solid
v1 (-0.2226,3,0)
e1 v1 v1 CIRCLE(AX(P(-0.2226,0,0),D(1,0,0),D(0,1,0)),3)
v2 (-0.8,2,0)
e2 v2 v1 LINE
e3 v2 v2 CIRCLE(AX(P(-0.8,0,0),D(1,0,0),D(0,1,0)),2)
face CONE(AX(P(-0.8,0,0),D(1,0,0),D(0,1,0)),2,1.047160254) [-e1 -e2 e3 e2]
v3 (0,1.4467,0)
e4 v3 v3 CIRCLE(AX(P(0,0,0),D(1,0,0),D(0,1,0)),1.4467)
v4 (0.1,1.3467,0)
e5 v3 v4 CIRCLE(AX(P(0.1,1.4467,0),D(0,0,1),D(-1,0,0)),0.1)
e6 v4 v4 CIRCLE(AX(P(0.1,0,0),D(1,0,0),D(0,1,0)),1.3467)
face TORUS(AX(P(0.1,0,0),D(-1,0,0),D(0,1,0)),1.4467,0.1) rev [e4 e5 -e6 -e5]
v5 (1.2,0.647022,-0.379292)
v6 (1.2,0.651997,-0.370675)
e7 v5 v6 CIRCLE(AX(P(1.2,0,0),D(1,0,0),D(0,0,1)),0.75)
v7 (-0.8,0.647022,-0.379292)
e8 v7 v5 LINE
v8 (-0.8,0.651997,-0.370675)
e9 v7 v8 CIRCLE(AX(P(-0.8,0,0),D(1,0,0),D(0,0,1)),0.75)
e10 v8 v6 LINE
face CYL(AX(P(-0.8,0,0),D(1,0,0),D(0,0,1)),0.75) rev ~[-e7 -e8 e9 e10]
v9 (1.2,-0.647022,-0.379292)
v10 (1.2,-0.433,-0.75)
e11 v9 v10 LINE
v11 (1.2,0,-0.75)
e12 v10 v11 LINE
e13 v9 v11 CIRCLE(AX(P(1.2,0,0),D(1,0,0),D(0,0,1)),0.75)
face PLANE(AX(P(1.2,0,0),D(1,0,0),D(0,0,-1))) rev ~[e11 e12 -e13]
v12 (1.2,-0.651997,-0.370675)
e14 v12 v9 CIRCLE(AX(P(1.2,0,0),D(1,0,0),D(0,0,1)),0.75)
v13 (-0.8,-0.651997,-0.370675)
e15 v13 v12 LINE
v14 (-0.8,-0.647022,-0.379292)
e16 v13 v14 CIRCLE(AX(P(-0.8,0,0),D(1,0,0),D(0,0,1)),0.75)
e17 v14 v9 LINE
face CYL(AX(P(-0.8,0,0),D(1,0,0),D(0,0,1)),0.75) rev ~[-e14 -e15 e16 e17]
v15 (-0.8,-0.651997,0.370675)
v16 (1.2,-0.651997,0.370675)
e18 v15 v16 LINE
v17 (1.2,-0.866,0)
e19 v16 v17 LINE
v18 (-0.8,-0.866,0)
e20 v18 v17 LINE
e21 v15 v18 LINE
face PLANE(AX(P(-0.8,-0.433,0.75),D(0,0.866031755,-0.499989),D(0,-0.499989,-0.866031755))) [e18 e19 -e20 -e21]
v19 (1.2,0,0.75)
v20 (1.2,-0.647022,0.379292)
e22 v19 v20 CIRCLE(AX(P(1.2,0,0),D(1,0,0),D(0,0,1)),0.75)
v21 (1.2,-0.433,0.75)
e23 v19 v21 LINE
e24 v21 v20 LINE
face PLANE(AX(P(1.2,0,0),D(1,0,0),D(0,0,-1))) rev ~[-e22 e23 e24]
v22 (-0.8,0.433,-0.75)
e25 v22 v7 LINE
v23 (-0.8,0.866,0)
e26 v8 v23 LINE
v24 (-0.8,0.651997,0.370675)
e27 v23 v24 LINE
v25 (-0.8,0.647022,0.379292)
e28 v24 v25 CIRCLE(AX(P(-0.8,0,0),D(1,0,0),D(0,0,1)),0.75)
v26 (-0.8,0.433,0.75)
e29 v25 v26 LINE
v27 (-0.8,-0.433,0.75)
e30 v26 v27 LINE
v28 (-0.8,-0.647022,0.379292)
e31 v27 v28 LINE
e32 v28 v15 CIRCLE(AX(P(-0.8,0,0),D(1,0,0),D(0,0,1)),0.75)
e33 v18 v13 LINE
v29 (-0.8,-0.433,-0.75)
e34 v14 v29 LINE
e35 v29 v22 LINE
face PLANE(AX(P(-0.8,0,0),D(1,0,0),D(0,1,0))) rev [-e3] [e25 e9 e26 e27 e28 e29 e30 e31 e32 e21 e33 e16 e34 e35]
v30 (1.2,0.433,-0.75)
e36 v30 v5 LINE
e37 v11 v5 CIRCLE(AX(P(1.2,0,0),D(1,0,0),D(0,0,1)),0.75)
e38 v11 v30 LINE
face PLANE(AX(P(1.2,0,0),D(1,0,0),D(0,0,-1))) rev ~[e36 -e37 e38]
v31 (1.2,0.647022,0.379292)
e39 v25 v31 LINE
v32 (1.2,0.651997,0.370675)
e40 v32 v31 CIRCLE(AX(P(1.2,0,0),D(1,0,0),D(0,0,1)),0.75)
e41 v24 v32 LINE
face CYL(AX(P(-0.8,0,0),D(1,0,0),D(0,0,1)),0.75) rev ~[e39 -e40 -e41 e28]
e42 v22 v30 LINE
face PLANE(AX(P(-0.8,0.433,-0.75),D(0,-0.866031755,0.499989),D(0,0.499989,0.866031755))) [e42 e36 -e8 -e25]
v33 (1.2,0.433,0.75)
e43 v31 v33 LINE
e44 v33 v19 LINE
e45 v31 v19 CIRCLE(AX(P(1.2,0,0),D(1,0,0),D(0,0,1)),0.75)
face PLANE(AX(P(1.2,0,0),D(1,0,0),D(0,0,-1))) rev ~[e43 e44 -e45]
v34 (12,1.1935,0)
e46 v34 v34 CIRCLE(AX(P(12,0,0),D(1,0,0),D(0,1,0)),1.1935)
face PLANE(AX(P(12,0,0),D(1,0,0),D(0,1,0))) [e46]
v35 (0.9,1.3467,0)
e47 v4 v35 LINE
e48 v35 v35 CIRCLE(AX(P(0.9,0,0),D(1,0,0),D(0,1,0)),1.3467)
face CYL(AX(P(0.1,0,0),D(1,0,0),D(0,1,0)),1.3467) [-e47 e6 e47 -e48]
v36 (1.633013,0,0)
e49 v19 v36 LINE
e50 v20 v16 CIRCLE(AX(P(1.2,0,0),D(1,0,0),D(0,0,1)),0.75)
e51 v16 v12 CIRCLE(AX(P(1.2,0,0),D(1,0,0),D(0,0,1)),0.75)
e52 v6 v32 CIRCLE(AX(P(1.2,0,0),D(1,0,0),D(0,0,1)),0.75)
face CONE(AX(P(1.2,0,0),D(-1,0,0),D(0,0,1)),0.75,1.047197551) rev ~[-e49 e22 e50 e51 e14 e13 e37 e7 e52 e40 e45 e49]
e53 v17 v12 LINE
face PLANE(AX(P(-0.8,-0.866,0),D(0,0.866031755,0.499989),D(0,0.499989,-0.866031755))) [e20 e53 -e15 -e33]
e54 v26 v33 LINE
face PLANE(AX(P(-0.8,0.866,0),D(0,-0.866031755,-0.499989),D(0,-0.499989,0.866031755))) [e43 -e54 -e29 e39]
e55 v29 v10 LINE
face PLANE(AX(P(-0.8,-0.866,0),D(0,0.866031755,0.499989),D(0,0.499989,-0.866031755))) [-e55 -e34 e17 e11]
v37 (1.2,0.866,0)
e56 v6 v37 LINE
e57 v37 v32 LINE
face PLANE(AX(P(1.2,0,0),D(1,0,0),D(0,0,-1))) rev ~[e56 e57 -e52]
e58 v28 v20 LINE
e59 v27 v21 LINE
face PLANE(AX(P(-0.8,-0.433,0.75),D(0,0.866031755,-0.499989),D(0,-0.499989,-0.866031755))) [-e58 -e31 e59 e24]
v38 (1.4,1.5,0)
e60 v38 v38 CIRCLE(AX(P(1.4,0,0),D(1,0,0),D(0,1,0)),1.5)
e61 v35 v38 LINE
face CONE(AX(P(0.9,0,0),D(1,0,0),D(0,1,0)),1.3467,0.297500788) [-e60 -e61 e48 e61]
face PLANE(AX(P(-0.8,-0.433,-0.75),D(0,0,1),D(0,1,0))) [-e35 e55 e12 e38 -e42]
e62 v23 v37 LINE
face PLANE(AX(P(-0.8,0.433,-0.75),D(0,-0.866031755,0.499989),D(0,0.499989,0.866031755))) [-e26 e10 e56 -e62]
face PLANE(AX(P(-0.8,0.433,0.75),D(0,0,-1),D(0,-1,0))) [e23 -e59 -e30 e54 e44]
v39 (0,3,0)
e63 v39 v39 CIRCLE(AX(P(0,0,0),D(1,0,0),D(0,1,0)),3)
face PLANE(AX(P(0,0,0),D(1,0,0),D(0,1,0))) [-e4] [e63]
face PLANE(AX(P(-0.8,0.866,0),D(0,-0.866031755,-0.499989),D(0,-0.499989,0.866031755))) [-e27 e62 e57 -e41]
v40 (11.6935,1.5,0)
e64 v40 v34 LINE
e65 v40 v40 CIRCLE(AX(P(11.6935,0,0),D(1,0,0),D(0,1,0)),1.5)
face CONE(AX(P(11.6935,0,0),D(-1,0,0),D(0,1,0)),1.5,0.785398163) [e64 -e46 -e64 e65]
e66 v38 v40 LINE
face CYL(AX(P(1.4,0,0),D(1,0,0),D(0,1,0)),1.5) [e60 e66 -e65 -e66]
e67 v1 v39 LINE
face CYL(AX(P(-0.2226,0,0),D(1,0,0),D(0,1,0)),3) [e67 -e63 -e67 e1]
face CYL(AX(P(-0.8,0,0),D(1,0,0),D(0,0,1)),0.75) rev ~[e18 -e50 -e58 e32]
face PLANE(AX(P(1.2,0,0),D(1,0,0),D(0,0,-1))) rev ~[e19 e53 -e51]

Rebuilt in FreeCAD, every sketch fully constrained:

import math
import FreeCAD as App
import Part
import Sketcher

V = App.Vector
Q = App.Units.Quantity


def add_polygon(sketch, points):
    """Adds a closed chain of lines whose ends are joined by coincident constraints."""
    first, n = sketch.GeometryCount, len(points)
    for a, b in zip(points, points[1:] + points[:1]):
        sketch.addGeometry(Part.LineSegment(App.Vector(*a, 0), App.Vector(*b, 0)), False)
    for i in range(n):
        sketch.addConstraint(Sketcher.Constraint("Coincident", first + i, 2, first + (i + 1) % n, 1))

doc = App.newDocument("Part")
params = doc.addObject("Spreadsheet::Sheet", "Params")
for row, (alias, value) in enumerate([
    ("sketch1_radius", "0.1 mm"),
    ("sketch1_height", "2 mm"),
    ("sketch1_width", "12.8 mm"),
    ("sketch1_width2", "0.8 mm"),
    ("revolution_angle", "360 deg"),
    ("sketch2_diameter", "1.5 mm"),
    ("hole_diameter", "1.5 mm"),
    ("hole_depth", "2 mm"),
    ("pocket1_length", "2 mm"),
], start=1):
    params.set(f"A{row}", alias)
    params.set(f"B{row}", "=" + value)
    params.setAlias(f"B{row}", alias)

body = doc.addObject("PartDesign::Body", "Body")

# Sketch on XY plane
sketch1 = body.newObject("Sketcher::SketchObject", "Sketch")
sketch1.AttachmentSupport = (doc.getObject("XY_Plane"), [""])
sketch1.MapMode = "FlatFace"
sketch1.addGeometry([
    Part.LineSegment(V(-0.8, 0, 0), V(12, 0, 0)),  # 0
    Part.LineSegment(V(12, 0, 0), V(12, 1.19, 0)),  # 1
    Part.LineSegment(V(12, 1.19, 0), V(11.69, 1.5, 0)),  # 2
    Part.LineSegment(V(11.69, 1.5, 0), V(1.4, 1.5, 0)),  # 3
    Part.LineSegment(V(1.4, 1.5, 0), V(0.9, 1.35, 0)),  # 4
    Part.LineSegment(V(0.9, 1.35, 0), V(0.1, 1.35, 0)),  # 5
    Part.ArcOfCircle(Part.Circle(V(0.1, 1.45, 0), V(0, 0, 1), 0.1), math.radians(180), math.radians(270)),  # 6
    Part.LineSegment(V(0, 1.45, 0), V(0, 3, 0)),  # 7
    Part.LineSegment(V(0, 3, 0), V(-0.22, 3, 0)),  # 8
    Part.LineSegment(V(-0.22, 3, 0), V(-0.8, 2, 0)),  # 9
    Part.LineSegment(V(-0.8, 2, 0), V(-0.8, 0, 0)),  # 10
], False)
sketch1.addConstraint([
    Sketcher.Constraint("Coincident", 0, 2, 1, 1),
    Sketcher.Constraint("Coincident", 1, 2, 2, 1),
    Sketcher.Constraint("Coincident", 2, 2, 3, 1),
    Sketcher.Constraint("Coincident", 3, 2, 4, 1),
    Sketcher.Constraint("Coincident", 4, 2, 5, 1),
    Sketcher.Constraint("Tangent", 5, 2, 6, 2),
    Sketcher.Constraint("Tangent", 6, 1, 7, 1),
    Sketcher.Constraint("Coincident", 7, 2, 8, 1),
    Sketcher.Constraint("Coincident", 8, 2, 9, 1),
    Sketcher.Constraint("Coincident", 9, 2, 10, 1),
    Sketcher.Constraint("Coincident", 10, 2, 0, 1),
    Sketcher.Constraint("Horizontal", 0),
    Sketcher.Constraint("Vertical", 1),
    Sketcher.Constraint("Horizontal", 3),
    Sketcher.Constraint("Horizontal", 5),
    Sketcher.Constraint("Vertical", 7),
    Sketcher.Constraint("Horizontal", 8),
    Sketcher.Constraint("Vertical", 10),
    Sketcher.Constraint("PointOnObject", 0, 2, -1),
    Sketcher.Constraint("PointOnObject", 6, 1, -2),
    Sketcher.Constraint("Radius", 6, Q("0.1 mm")),
    Sketcher.Constraint("DistanceY", 10, 2, 10, 1, Q("2 mm")),
    Sketcher.Constraint("Angle", 2, Q("135 deg")),
    Sketcher.Constraint("DistanceX", 0, 1, 0, 2, Q("12.8 mm")),
    Sketcher.Constraint("DistanceX", 5, 2, 5, 1, Q("0.8 mm")),
    Sketcher.Constraint("DistanceX", -1, 1, 0, 2, Q("12 mm")),
    Sketcher.Constraint("DistanceY", -1, 1, 7, 2, Q("3 mm")),
    Sketcher.Constraint("DistanceY", -1, 1, 2, 2, Q("1.5 mm")),
    Sketcher.Constraint("DistanceX", -1, 1, 3, 2, Q("1.4 mm")),
    Sketcher.Constraint("Distance", 4, Q("0.523 mm")),
    Sketcher.Constraint("DistanceX", 3, 2, 3, 1, Q("10.2935 mm")),
    Sketcher.Constraint("DistanceX", 8, 2, 8, 1, Q("0.2226 mm")),
])
sketch1.setExpression("Constraints[20]", "Params.sketch1_radius")
sketch1.setExpression("Constraints[21]", "Params.sketch1_height")
sketch1.setExpression("Constraints[23]", "Params.sketch1_width")
sketch1.setExpression("Constraints[24]", "Params.sketch1_width2")
revolution = body.newObject("PartDesign::Revolution", "Revolution")
revolution.Profile = sketch1
revolution.ReferenceAxis = (sketch1, ["H_Axis"])
revolution.setExpression("Angle", "Params.revolution_angle")

# Sketch on YZ plane
sketch2 = body.newObject("Sketcher::SketchObject", "Sketch001")
sketch2.AttachmentSupport = (doc.getObject("YZ_Plane"), [""])
sketch2.MapMode = "FlatFace"
sketch2.AttachmentOffset = App.Placement(V(0, 0, -0.8), App.Rotation())
sketch2.addGeometry(Part.Circle(V(0, 0, 0), V(0, 0, 1), 0.8), False)
sketch2.addConstraint([
    Sketcher.Constraint("Coincident", 0, 3, -1, 1),
    Sketcher.Constraint("Diameter", 0, Q("1.5 mm")),
])
sketch2.setExpression("Constraints[1]", "Params.sketch2_diameter")
doc.recompute()
hole = body.newObject("PartDesign::Hole", "Hole")
hole.Profile = sketch2
hole.ThreadType = "None"
hole.setExpression("Diameter", "Params.hole_diameter")
hole.DepthType = "Dimension"
hole.setExpression("Depth", "Params.hole_depth")
hole.DrillPoint = "Angled"
hole.DrillPointAngle = 120
hole.Reversed = True

# Sketch on YZ plane
sketch3 = body.newObject("Sketcher::SketchObject", "Sketch002")
sketch3.AttachmentSupport = (doc.getObject("YZ_Plane"), [""])
sketch3.MapMode = "FlatFace"
sketch3.AttachmentOffset = App.Placement(V(0, 0, -0.8), App.Rotation())
add_polygon(sketch3, [(0.4, 0.8), (-0.4, 0.8), (-0.9, 0), (-0.4, -0.8), (0.4, -0.8), (0.9, 0)])  # lines 0-5
sketch3.addConstraint([
    Sketcher.Constraint("Horizontal", 0),
    Sketcher.Constraint("Horizontal", 3),
    Sketcher.Constraint("Symmetric", 0, 2, 3, 2, -1, 1),
    Sketcher.Constraint("Symmetric", 1, 2, 4, 2, -1, 1),
    Sketcher.Constraint("PointOnObject", 1, 2, -1),
    Sketcher.Constraint("Parallel", 2, 5),
    Sketcher.Constraint("Vertical", 0, 2, 2, 2),
    Sketcher.Constraint("Angle", 1, Q("-119.9993 deg")),
    Sketcher.Constraint("DistanceY", 2, 2, 0, 2, Q("1.5 mm")),
    Sketcher.Constraint("DistanceX", 0, 2, 0, 1, Q("0.866 mm")),
])
pocket1 = body.newObject("PartDesign::Pocket", "Pocket")
pocket1.Profile = sketch3
pocket1.setExpression("Length", "Params.pocket1_length")
pocket1.Reversed = True

doc.recompute()
